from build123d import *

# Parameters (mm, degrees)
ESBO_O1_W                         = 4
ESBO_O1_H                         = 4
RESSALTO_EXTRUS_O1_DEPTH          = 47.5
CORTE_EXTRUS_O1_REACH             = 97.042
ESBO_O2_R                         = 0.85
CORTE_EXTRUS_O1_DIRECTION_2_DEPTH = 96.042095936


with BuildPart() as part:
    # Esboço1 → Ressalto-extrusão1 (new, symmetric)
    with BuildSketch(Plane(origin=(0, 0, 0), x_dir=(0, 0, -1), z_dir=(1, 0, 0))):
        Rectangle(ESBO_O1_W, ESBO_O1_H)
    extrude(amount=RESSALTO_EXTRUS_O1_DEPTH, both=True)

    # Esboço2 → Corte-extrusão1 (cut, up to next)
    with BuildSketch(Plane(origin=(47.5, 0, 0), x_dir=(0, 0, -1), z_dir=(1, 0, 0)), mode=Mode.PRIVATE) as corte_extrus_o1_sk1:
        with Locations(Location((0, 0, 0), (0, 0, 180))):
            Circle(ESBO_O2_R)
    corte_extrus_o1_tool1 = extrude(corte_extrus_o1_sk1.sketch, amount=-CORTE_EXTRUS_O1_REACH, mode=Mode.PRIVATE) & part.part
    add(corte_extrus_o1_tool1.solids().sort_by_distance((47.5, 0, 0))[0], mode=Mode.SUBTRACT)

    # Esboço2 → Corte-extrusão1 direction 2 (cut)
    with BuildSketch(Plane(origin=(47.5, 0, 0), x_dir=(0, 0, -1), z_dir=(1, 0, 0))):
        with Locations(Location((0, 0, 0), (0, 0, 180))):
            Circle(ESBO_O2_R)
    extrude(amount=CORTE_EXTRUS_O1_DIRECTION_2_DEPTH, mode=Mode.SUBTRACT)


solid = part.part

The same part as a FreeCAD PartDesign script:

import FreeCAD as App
import Part
import Sketcher
Q = App.Units.Quantity

doc = App.newDocument("Part")
body = doc.addObject("PartDesign::Body", "Body")

# Sketch on YZ plane
sketch1 = body.newObject("Sketcher::SketchObject", "Sketch")
sketch1.AttachmentSupport = (doc.getObject("YZ_Plane"), [""])
sketch1.MapMode = "FlatFace"
sketch1.addGeometry([
    Part.LineSegment(App.Vector(2, 2, 0), App.Vector(-2, 2, 0)),
    Part.LineSegment(App.Vector(-2, 2, 0), App.Vector(-2, -2, 0)),
    Part.LineSegment(App.Vector(-2, -2, 0), App.Vector(2, -2, 0)),
    Part.LineSegment(App.Vector(2, -2, 0), App.Vector(2, 2, 0)),
], False)
sketch1.addConstraint([
    Sketcher.Constraint("Coincident", 0, 2, 1, 1),
    Sketcher.Constraint("Coincident", 1, 2, 2, 1),
    Sketcher.Constraint("Coincident", 2, 2, 3, 1),
    Sketcher.Constraint("Coincident", 3, 2, 0, 1),
    Sketcher.Constraint("Horizontal", 0),
    Sketcher.Constraint("Vertical", 1),
    Sketcher.Constraint("Horizontal", 2),
    Sketcher.Constraint("Vertical", 3),
    Sketcher.Constraint("Symmetric", 0, 2, 2, 2, -1, 1),
    Sketcher.Constraint("Equal", 2, 1),
    Sketcher.Constraint("DistanceX", 0, 2, 0, 1, Q("4 mm")),
])
pad1 = body.newObject("PartDesign::Pad", "Pad")
pad1.Profile = sketch1
pad1.Length = 95
pad1.Midplane = True

# Sketch on YZ plane
sketch2 = body.newObject("Sketcher::SketchObject", "Sketch001")
sketch2.AttachmentSupport = (doc.getObject("YZ_Plane"), [""])
sketch2.MapMode = "FlatFace"
sketch2.AttachmentOffset = App.Placement(App.Vector(0, 0, 47.5), App.Rotation())
sketch2.addGeometry(Part.Circle(App.Vector(0, 0, 0), App.Vector(0, 0, 1), 0.8), False)
sketch2.addConstraint([
    Sketcher.Constraint("Coincident", 0, 3, -1, 1),
    Sketcher.Constraint("Diameter", 0, Q("1.7 mm")),
])
pocket1 = body.newObject("PartDesign::Pocket", "Pocket")
pocket1.Profile = sketch2
pocket1.Type = "UpToFirst"

# Sketch on YZ plane
sketch3 = body.newObject("Sketcher::SketchObject", "Sketch002")
sketch3.AttachmentSupport = (doc.getObject("YZ_Plane"), [""])
sketch3.MapMode = "FlatFace"
sketch3.AttachmentOffset = App.Placement(App.Vector(0, 0, 47.5), App.Rotation())
sketch3.addGeometry(Part.Circle(App.Vector(0, 0, 0), App.Vector(0, 0, 1), 0.8), False)
sketch3.addConstraint([
    Sketcher.Constraint("Coincident", 0, 3, -1, 1),
    Sketcher.Constraint("Diameter", 0, Q("1.7 mm")),
])
pocket2 = body.newObject("PartDesign::Pocket", "Pocket001")
pocket2.Profile = sketch3
pocket2.Length = 96.042096
pocket2.Reversed = True

doc.recompute()
